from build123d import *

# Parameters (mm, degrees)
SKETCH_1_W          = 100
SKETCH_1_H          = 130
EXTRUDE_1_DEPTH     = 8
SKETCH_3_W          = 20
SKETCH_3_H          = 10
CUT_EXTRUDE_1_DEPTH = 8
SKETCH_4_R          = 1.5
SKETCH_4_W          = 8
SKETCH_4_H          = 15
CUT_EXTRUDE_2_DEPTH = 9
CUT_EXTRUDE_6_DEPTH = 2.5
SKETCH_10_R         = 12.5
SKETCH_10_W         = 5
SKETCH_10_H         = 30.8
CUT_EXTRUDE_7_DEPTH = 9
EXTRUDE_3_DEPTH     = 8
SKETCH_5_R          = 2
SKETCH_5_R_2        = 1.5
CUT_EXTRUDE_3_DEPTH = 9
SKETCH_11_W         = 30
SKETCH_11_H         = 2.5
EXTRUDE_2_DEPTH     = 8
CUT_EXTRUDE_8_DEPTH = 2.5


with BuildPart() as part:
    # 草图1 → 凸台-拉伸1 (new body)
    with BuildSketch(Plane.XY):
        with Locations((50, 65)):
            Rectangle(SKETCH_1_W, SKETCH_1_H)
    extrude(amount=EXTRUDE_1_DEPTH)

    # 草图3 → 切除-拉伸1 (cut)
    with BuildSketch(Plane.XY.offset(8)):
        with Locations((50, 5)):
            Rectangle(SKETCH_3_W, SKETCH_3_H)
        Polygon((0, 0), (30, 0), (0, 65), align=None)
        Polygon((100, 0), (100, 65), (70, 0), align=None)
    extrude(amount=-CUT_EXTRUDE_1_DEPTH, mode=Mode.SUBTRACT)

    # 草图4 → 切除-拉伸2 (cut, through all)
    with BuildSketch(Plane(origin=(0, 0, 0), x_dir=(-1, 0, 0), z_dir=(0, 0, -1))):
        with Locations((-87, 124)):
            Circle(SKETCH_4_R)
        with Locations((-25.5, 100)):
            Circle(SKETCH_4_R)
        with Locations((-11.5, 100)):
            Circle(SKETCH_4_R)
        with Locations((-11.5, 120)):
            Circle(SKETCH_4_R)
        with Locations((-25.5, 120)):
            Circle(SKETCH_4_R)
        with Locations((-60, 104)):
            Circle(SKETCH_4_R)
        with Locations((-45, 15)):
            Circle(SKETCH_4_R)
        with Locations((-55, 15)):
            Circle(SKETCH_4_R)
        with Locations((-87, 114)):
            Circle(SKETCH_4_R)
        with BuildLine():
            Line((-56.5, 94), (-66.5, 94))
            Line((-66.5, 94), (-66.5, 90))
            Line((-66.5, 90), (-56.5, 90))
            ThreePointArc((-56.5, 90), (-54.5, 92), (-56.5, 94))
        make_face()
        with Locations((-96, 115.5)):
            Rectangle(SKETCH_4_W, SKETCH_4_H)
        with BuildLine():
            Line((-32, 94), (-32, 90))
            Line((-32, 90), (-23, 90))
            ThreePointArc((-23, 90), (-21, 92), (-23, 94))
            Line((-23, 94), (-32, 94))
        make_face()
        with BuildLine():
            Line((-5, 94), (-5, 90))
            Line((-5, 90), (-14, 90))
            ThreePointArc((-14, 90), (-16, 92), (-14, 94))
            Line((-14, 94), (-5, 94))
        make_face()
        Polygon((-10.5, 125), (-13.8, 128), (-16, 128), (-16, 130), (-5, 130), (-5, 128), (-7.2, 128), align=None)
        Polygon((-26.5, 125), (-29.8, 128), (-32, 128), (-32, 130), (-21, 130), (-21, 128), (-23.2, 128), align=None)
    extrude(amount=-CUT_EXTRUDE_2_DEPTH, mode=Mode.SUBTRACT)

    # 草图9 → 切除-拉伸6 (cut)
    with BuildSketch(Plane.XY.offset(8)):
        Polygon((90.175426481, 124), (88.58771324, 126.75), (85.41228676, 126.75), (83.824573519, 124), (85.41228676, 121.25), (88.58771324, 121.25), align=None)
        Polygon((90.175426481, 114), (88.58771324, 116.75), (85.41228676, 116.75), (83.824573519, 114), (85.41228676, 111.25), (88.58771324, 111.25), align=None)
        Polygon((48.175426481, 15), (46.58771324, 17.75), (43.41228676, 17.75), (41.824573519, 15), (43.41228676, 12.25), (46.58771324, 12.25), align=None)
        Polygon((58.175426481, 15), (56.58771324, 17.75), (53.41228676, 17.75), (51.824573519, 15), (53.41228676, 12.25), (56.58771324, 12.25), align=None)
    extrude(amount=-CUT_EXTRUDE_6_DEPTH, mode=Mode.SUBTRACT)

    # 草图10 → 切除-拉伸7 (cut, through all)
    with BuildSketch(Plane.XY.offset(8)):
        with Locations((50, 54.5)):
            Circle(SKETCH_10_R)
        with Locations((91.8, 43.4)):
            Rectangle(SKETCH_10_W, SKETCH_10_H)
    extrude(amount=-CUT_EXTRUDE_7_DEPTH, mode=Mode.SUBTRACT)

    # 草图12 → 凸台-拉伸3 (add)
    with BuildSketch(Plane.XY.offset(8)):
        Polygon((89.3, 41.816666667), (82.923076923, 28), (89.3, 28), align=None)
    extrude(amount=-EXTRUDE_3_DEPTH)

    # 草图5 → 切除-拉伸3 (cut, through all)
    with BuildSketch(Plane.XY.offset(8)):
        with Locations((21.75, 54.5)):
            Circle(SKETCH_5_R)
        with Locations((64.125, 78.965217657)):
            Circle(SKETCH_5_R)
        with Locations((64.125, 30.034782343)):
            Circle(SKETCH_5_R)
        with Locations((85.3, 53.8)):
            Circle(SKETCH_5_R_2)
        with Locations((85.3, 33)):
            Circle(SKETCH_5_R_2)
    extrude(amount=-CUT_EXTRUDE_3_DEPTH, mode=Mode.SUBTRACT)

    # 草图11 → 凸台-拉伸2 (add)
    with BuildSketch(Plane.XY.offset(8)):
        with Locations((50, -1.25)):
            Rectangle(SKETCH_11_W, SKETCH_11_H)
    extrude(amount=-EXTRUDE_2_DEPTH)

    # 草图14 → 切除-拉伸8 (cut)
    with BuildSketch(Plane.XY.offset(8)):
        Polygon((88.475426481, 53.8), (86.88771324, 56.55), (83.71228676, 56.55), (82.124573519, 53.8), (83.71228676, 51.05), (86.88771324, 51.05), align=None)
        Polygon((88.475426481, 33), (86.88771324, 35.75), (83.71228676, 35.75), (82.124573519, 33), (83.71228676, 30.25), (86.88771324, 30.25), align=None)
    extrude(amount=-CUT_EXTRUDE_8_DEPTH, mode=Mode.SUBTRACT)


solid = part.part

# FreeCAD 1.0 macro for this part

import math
import FreeCAD as App
import Part
import Sketcher
Q = App.Units.Quantity

doc = App.newDocument("Part")
body = doc.addObject("PartDesign::Body", "Body")

# Sketch on XY plane
sketch1 = body.newObject("Sketcher::SketchObject", "Sketch")
sketch1.AttachmentSupport = (doc.getObject("XY_Plane"), [""])
sketch1.MapMode = "FlatFace"
sketch1.addGeometry(Part.LineSegment(App.Vector(0, 130, 0), App.Vector(0, 0, 0)), False)
sketch1.addGeometry(Part.LineSegment(App.Vector(0, 0, 0), App.Vector(100, 0, 0)), False)
sketch1.addGeometry(Part.LineSegment(App.Vector(100, 0, 0), App.Vector(100, 130, 0)), False)
sketch1.addGeometry(Part.LineSegment(App.Vector(100, 130, 0), App.Vector(0, 130, 0)), False)
sketch1.addConstraint(Sketcher.Constraint("Coincident", 0, 2, 1, 1))
sketch1.addConstraint(Sketcher.Constraint("Coincident", 1, 2, 2, 1))
sketch1.addConstraint(Sketcher.Constraint("Coincident", 2, 2, 3, 1))
sketch1.addConstraint(Sketcher.Constraint("Coincident", 3, 2, 0, 1))
sketch1.addConstraint(Sketcher.Constraint("Vertical", 0))
sketch1.addConstraint(Sketcher.Constraint("Horizontal", 1))
sketch1.addConstraint(Sketcher.Constraint("Vertical", 2))
sketch1.addConstraint(Sketcher.Constraint("Horizontal", 3))
sketch1.addConstraint(Sketcher.Constraint("Coincident", 0, 2, -1, 1))
sketch1.addConstraint(Sketcher.Constraint("DistanceX", 1, 1, 1, 2, Q("100 mm")))
sketch1.addConstraint(Sketcher.Constraint("DistanceY", 0, 2, 0, 1, Q("130 mm")))
pad1 = body.newObject("PartDesign::Pad", "Pad")
pad1.Profile = sketch1
pad1.Length = 8

# Sketch on XY plane
sketch2 = body.newObject("Sketcher::SketchObject", "Sketch001")
sketch2.AttachmentSupport = (doc.getObject("XY_Plane"), [""])
sketch2.MapMode = "FlatFace"
sketch2.AttachmentOffset = App.Placement(App.Vector(0, 0, 8), App.Rotation())
sketch2.addGeometry(Part.LineSegment(App.Vector(40, 10, 0), App.Vector(40, 0, 0)), False)
sketch2.addGeometry(Part.LineSegment(App.Vector(40, 0, 0), App.Vector(60, 0, 0)), False)
sketch2.addGeometry(Part.LineSegment(App.Vector(60, 0, 0), App.Vector(60, 10, 0)), False)
sketch2.addGeometry(Part.LineSegment(App.Vector(60, 10, 0), App.Vector(40, 10, 0)), False)
sketch2.addGeometry(Part.LineSegment(App.Vector(0, 0, 0), App.Vector(30, 0, 0)), False)
sketch2.addGeometry(Part.LineSegment(App.Vector(30, 0, 0), App.Vector(0, 65, 0)), False)
sketch2.addGeometry(Part.LineSegment(App.Vector(0, 65, 0), App.Vector(0, 0, 0)), False)
sketch2.addGeometry(Part.LineSegment(App.Vector(100, 0, 0), App.Vector(100, 65, 0)), False)
sketch2.addGeometry(Part.LineSegment(App.Vector(100, 65, 0), App.Vector(70, 0, 0)), False)
sketch2.addGeometry(Part.LineSegment(App.Vector(70, 0, 0), App.Vector(100, 0, 0)), False)
sketch2.addConstraint(Sketcher.Constraint("Coincident", 0, 2, 1, 1))
sketch2.addConstraint(Sketcher.Constraint("Coincident", 1, 2, 2, 1))
sketch2.addConstraint(Sketcher.Constraint("Coincident", 2, 2, 3, 1))
sketch2.addConstraint(Sketcher.Constraint("Coincident", 3, 2, 0, 1))
sketch2.addConstraint(Sketcher.Constraint("Coincident", 4, 2, 5, 1))
sketch2.addConstraint(Sketcher.Constraint("Coincident", 5, 2, 6, 1))
sketch2.addConstraint(Sketcher.Constraint("Coincident", 6, 2, 4, 1))
sketch2.addConstraint(Sketcher.Constraint("Coincident", 7, 2, 8, 1))
sketch2.addConstraint(Sketcher.Constraint("Coincident", 8, 2, 9, 1))
sketch2.addConstraint(Sketcher.Constraint("Coincident", 9, 2, 7, 1))
sketch2.addConstraint(Sketcher.Constraint("Vertical", 0))
sketch2.addConstraint(Sketcher.Constraint("Horizontal", 1))
sketch2.addConstraint(Sketcher.Constraint("Vertical", 2))
sketch2.addConstraint(Sketcher.Constraint("Horizontal", 3))
sketch2.addConstraint(Sketcher.Constraint("Horizontal", 4))
sketch2.addConstraint(Sketcher.Constraint("Vertical", 6))
sketch2.addConstraint(Sketcher.Constraint("Vertical", 7))
sketch2.addConstraint(Sketcher.Constraint("Horizontal", 9))
sketch2.addConstraint(Sketcher.Constraint("Coincident", 6, 2, -1, 1))
sketch2.addConstraint(Sketcher.Constraint("PointOnObject", 0, 2, -1))
sketch2.addConstraint(Sketcher.Constraint("PointOnObject", 8, 2, -1))
sketch2.addConstraint(Sketcher.Constraint("Horizontal", 5, 2, 7, 2))
sketch2.addConstraint(Sketcher.Constraint("Equal", 4, 9))
sketch2.addConstraint(Sketcher.Constraint("DistanceX", 1, 1, 1, 2, Q("20 mm")))
sketch2.addConstraint(Sketcher.Constraint("DistanceX", 4, 1, 4, 2, Q("30 mm")))
sketch2.addConstraint(Sketcher.Constraint("DistanceY", 0, 2, 0, 1, Q("10 mm")))
sketch2.addConstraint(Sketcher.Constraint("DistanceY", 6, 2, 6, 1, Q("65 mm")))
sketch2.addConstraint(Sketcher.Constraint("DistanceX", -1, 1, 0, 2, Q("40 mm")))
sketch2.addConstraint(Sketcher.Constraint("DistanceX", -1, 1, 7, 2, Q("100 mm")))
pocket1 = body.newObject("PartDesign::Pocket", "Pocket")
pocket1.Profile = sketch2
pocket1.Length = 8

# Sketch on XY plane
sketch3 = body.newObject("Sketcher::SketchObject", "Sketch002")
sketch3.AttachmentSupport = (doc.getObject("XY_Plane"), [""])
sketch3.MapMode = "FlatFace"
sketch3.addGeometry(Part.Circle(App.Vector(87, 124, 0), App.Vector(0, 0, 1), 1.5), False)
sketch3.addGeometry(Part.Circle(App.Vector(25.5, 100, 0), App.Vector(0, 0, 1), 1.5), False)
sketch3.addGeometry(Part.Circle(App.Vector(11.5, 100, 0), App.Vector(0, 0, 1), 1.5), False)
sketch3.addGeometry(Part.Circle(App.Vector(11.5, 120, 0), App.Vector(0, 0, 1), 1.5), False)
sketch3.addGeometry(Part.Circle(App.Vector(25.5, 120, 0), App.Vector(0, 0, 1), 1.5), False)
sketch3.addGeometry(Part.Circle(App.Vector(60, 104, 0), App.Vector(0, 0, 1), 1.5), False)
sketch3.addGeometry(Part.Circle(App.Vector(45, 15, 0), App.Vector(0, 0, 1), 1.5), False)
sketch3.addGeometry(Part.Circle(App.Vector(55, 15, 0), App.Vector(0, 0, 1), 1.5), False)
sketch3.addGeometry(Part.Circle(App.Vector(87, 114, 0), App.Vector(0, 0, 1), 1.5), False)
sketch3.addGeometry(Part.LineSegment(App.Vector(56.5, 94, 0), App.Vector(66.5, 94, 0)), False)
sketch3.addGeometry(Part.LineSegment(App.Vector(66.5, 94, 0), App.Vector(66.5, 90, 0)), False)
sketch3.addGeometry(Part.LineSegment(App.Vector(66.5, 90, 0), App.Vector(56.5, 90, 0)), False)
sketch3.addGeometry(Part.ArcOfCircle(Part.Circle(App.Vector(56.5, 92, 0), App.Vector(0, 0, 1), 2), math.radians(90), math.radians(270)), False)
sketch3.addGeometry(Part.LineSegment(App.Vector(100, 123, 0), App.Vector(100, 108, 0)), False)
sketch3.addGeometry(Part.LineSegment(App.Vector(100, 108, 0), App.Vector(92, 108, 0)), False)
sketch3.addGeometry(Part.LineSegment(App.Vector(92, 108, 0), App.Vector(92, 123, 0)), False)
sketch3.addGeometry(Part.LineSegment(App.Vector(92, 123, 0), App.Vector(100, 123, 0)), False)
sketch3.addGeometry(Part.LineSegment(App.Vector(32, 94, 0), App.Vector(32, 90, 0)), False)
sketch3.addGeometry(Part.LineSegment(App.Vector(32, 90, 0), App.Vector(23, 90, 0)), False)
sketch3.addGeometry(Part.ArcOfCircle(Part.Circle(App.Vector(23, 92, 0), App.Vector(0, 0, 1), 2), math.radians(90), math.radians(270)), False)
sketch3.addGeometry(Part.LineSegment(App.Vector(23, 94, 0), App.Vector(32, 94, 0)), False)
sketch3.addGeometry(Part.LineSegment(App.Vector(5, 90, 0), App.Vector(5, 94, 0)), False)
sketch3.addGeometry(Part.LineSegment(App.Vector(5, 94, 0), App.Vector(14, 94, 0)), False)
sketch3.addGeometry(Part.ArcOfCircle(Part.Circle(App.Vector(14, 92, 0), App.Vector(0, 0, 1), 2), math.radians(-90), math.radians(90)), False)
sketch3.addGeometry(Part.LineSegment(App.Vector(14, 90, 0), App.Vector(5, 90, 0)), False)
sketch3.addGeometry(Part.LineSegment(App.Vector(13.8, 128, 0), App.Vector(10.5, 125, 0)), False)
sketch3.addGeometry(Part.LineSegment(App.Vector(10.5, 125, 0), App.Vector(7.2, 128, 0)), False)
sketch3.addGeometry(Part.LineSegment(App.Vector(7.2, 128, 0), App.Vector(5, 128, 0)), False)
sketch3.addGeometry(Part.LineSegment(App.Vector(5, 128, 0), App.Vector(5, 130, 0)), False)
sketch3.addGeometry(Part.LineSegment(App.Vector(5, 130, 0), App.Vector(16, 130, 0)), False)
sketch3.addGeometry(Part.LineSegment(App.Vector(16, 130, 0), App.Vector(16, 128, 0)), False)
sketch3.addGeometry(Part.LineSegment(App.Vector(16, 128, 0), App.Vector(13.8, 128, 0)), False)
sketch3.addGeometry(Part.LineSegment(App.Vector(29.8, 128, 0), App.Vector(26.5, 125, 0)), False)
sketch3.addGeometry(Part.LineSegment(App.Vector(26.5, 125, 0), App.Vector(23.2, 128, 0)), False)
sketch3.addGeometry(Part.LineSegment(App.Vector(23.2, 128, 0), App.Vector(21, 128, 0)), False)
sketch3.addGeometry(Part.LineSegment(App.Vector(21, 128, 0), App.Vector(21, 130, 0)), False)
sketch3.addGeometry(Part.LineSegment(App.Vector(21, 130, 0), App.Vector(32, 130, 0)), False)
sketch3.addGeometry(Part.LineSegment(App.Vector(32, 130, 0), App.Vector(32, 128, 0)), False)
sketch3.addGeometry(Part.LineSegment(App.Vector(32, 128, 0), App.Vector(29.8, 128, 0)), False)
sketch3.addConstraint(Sketcher.Constraint("Coincident", 9, 2, 10, 1))
sketch3.addConstraint(Sketcher.Constraint("Coincident", 10, 2, 11, 1))
sketch3.addConstraint(Sketcher.Constraint("Tangent", 11, 2, 12, 2))
sketch3.addConstraint(Sketcher.Constraint("Tangent", 12, 1, 9, 1))
sketch3.addConstraint(Sketcher.Constraint("Coincident", 13, 2, 14, 1))
sketch3.addConstraint(Sketcher.Constraint("Coincident", 14, 2, 15, 1))
sketch3.addConstraint(Sketcher.Constraint("Coincident", 15, 2, 16, 1))
sketch3.addConstraint(Sketcher.Constraint("Coincident", 16, 2, 13, 1))
sketch3.addConstraint(Sketcher.Constraint("Coincident", 17, 2, 18, 1))
sketch3.addConstraint(Sketcher.Constraint("Tangent", 18, 2, 19, 2))
sketch3.addConstraint(Sketcher.Constraint("Tangent", 19, 1, 20, 1))
sketch3.addConstraint(Sketcher.Constraint("Coincident", 20, 2, 17, 1))
sketch3.addConstraint(Sketcher.Constraint("Coincident", 21, 2, 22, 1))
sketch3.addConstraint(Sketcher.Constraint("Tangent", 22, 2, 23, 2))
sketch3.addConstraint(Sketcher.Constraint("Tangent", 23, 1, 24, 1))
sketch3.addConstraint(Sketcher.Constraint("Coincident", 24, 2, 21, 1))
sketch3.addConstraint(Sketcher.Constraint("Coincident", 25, 2, 26, 1))
sketch3.addConstraint(Sketcher.Constraint("Coincident", 26, 2, 27, 1))
sketch3.addConstraint(Sketcher.Constraint("Coincident", 27, 2, 28, 1))
sketch3.addConstraint(Sketcher.Constraint("Coincident", 28, 2, 29, 1))
sketch3.addConstraint(Sketcher.Constraint("Coincident", 29, 2, 30, 1))
sketch3.addConstraint(Sketcher.Constraint("Coincident", 30, 2, 31, 1))
sketch3.addConstraint(Sketcher.Constraint("Coincident", 31, 2, 25, 1))
sketch3.addConstraint(Sketcher.Constraint("Coincident", 32, 2, 33, 1))
sketch3.addConstraint(Sketcher.Constraint("Coincident", 33, 2, 34, 1))
sketch3.addConstraint(Sketcher.Constraint("Coincident", 34, 2, 35, 1))
sketch3.addConstraint(Sketcher.Constraint("Coincident", 35, 2, 36, 1))
sketch3.addConstraint(Sketcher.Constraint("Coincident", 36, 2, 37, 1))
sketch3.addConstraint(Sketcher.Constraint("Coincident", 37, 2, 38, 1))
sketch3.addConstraint(Sketcher.Constraint("Coincident", 38, 2, 32, 1))
sketch3.addConstraint(Sketcher.Constraint("Horizontal", 9))
sketch3.addConstraint(Sketcher.Constraint("Vertical", 10))
sketch3.addConstraint(Sketcher.Constraint("Horizontal", 11))
sketch3.addConstraint(Sketcher.Constraint("Vertical", 13))
sketch3.addConstraint(Sketcher.Constraint("Horizontal", 14))
sketch3.addConstraint(Sketcher.Constraint("Vertical", 15))
sketch3.addConstraint(Sketcher.Constraint("Horizontal", 16))
sketch3.addConstraint(Sketcher.Constraint("Vertical", 17))
sketch3.addConstraint(Sketcher.Constraint("Horizontal", 18))
sketch3.addConstraint(Sketcher.Constraint("Horizontal", 20))
sketch3.addConstraint(Sketcher.Constraint("Vertical", 21))
sketch3.addConstraint(Sketcher.Constraint("Horizontal", 22))
sketch3.addConstraint(Sketcher.Constraint("Horizontal", 24))
sketch3.addConstraint(Sketcher.Constraint("Horizontal", 27))
sketch3.addConstraint(Sketcher.Constraint("Vertical", 28))
sketch3.addConstraint(Sketcher.Constraint("Horizontal", 29))
sketch3.addConstraint(Sketcher.Constraint("Vertical", 30))
sketch3.addConstraint(Sketcher.Constraint("Horizontal", 31))
sketch3.addConstraint(Sketcher.Constraint("Horizontal", 34))
sketch3.addConstraint(Sketcher.Constraint("Vertical", 35))
sketch3.addConstraint(Sketcher.Constraint("Horizontal", 36))
sketch3.addConstraint(Sketcher.Constraint("Vertical", 37))
sketch3.addConstraint(Sketcher.Constraint("Horizontal", 38))
sketch3.addConstraint(Sketcher.Constraint("Equal", 0, 1))
sketch3.addConstraint(Sketcher.Constraint("Equal", 1, 2))
sketch3.addConstraint(Sketcher.Constraint("Equal", 2, 3))
sketch3.addConstraint(Sketcher.Constraint("Equal", 3, 4))
sketch3.addConstraint(Sketcher.Constraint("Equal", 4, 5))
sketch3.addConstraint(Sketcher.Constraint("Equal", 5, 6))
sketch3.addConstraint(Sketcher.Constraint("Equal", 6, 7))
sketch3.addConstraint(Sketcher.Constraint("Equal", 7, 8))
sketch3.addConstraint(Sketcher.Constraint("Equal", 12, 19))
sketch3.addConstraint(Sketcher.Constraint("Equal", 19, 23))
sketch3.addConstraint(Sketcher.Constraint("Parallel", 25, 32))
sketch3.addConstraint(Sketcher.Constraint("Parallel", 26, 33))
sketch3.addConstraint(Sketcher.Constraint("Horizontal", 1, 3, 2, 3))
sketch3.addConstraint(Sketcher.Constraint("Horizontal", 3, 3, 4, 3))
sketch3.addConstraint(Sketcher.Constraint("Horizontal", 6, 3, 7, 3))
sketch3.addConstraint(Sketcher.Constraint("Horizontal", 12, 3, 19, 3))
sketch3.addConstraint(Sketcher.Constraint("Horizontal", 19, 3, 23, 3))
sketch3.addConstraint(Sketcher.Constraint("Horizontal", 27, 2, 30, 2))
sketch3.addConstraint(Sketcher.Constraint("Horizontal", 25, 2, 32, 2))
sketch3.addConstraint(Sketcher.Constraint("Horizontal", 31, 2, 33, 2))
sketch3.addConstraint(Sketcher.Constraint("Horizontal", 29, 2, 35, 2))
sketch3.addConstraint(Sketcher.Constraint("Horizontal", 34, 2, 37, 2))
sketch3.addConstraint(Sketcher.Constraint("Vertical", 2, 3, 3, 3))
sketch3.addConstraint(Sketcher.Constraint("Vertical", 1, 3, 4, 3))
sketch3.addConstraint(Sketcher.Constraint("Vertical", 0, 3, 8, 3))
sketch3.addConstraint(Sketcher.Constraint("Vertical", 24, 2, 27, 2))
sketch3.addConstraint(Sketcher.Constraint("Vertical", 20, 2, 36, 2))
sketch3.addConstraint(Sketcher.Constraint("Equal", 20, 22))
sketch3.addConstraint(Sketcher.Constraint("Equal", 27, 31))
sketch3.addConstraint(Sketcher.Constraint("Equal", 31, 34))
sketch3.addConstraint(Sketcher.Constraint("Equal", 29, 36))
sketch3.addConstraint(Sketcher.Constraint("Equal", 25, 26))
sketch3.addConstraint(Sketcher.Constraint("Diameter", 0, Q("3 mm")))
sketch3.addConstraint(Sketcher.Constraint("Radius", 12, Q("2 mm")))
sketch3.addConstraint(Sketcher.Constraint("DistanceX", 9, 1, 9, 2, Q("10 mm")))
sketch3.addConstraint(Sketcher.Constraint("DistanceX", 14, 2, 14, 1, Q("8 mm")))
sketch3.addConstraint(Sketcher.Constraint("DistanceX", 18, 2, 18, 1, Q("9 mm")))
sketch3.addConstraint(Sketcher.Constraint("DistanceX", 29, 1, 29, 2, Q("11 mm")))
sketch3.addConstraint(Sketcher.Constraint("DistanceY", 13, 2, 13, 1, Q("15 mm")))
sketch3.addConstraint(Sketcher.Constraint("DistanceY", 28, 1, 28, 2, Q("2 mm")))
sketch3.addConstraint(Sketcher.Constraint("DistanceX", 27, 2, 27, 1, Q("2.2 mm")))
sketch3.addConstraint(Sketcher.Constraint("DistanceX", -1, 1, 0, 3, Q("87 mm")))
sketch3.addConstraint(Sketcher.Constraint("DistanceY", -1, 1, 0, 3, Q("124 mm")))
sketch3.addConstraint(Sketcher.Constraint("DistanceY", -1, 1, 1, 3, Q("100 mm")))
sketch3.addConstraint(Sketcher.Constraint("DistanceY", -1, 1, 3, 3, Q("120 mm")))
sketch3.addConstraint(Sketcher.Constraint("DistanceX", -1, 1, 5, 3, Q("60 mm")))
sketch3.addConstraint(Sketcher.Constraint("DistanceY", -1, 1, 5, 3, Q("104 mm")))
sketch3.addConstraint(Sketcher.Constraint("DistanceX", -1, 1, 6, 3, Q("45 mm")))
sketch3.addConstraint(Sketcher.Constraint("DistanceY", -1, 1, 6, 3, Q("15 mm")))
sketch3.addConstraint(Sketcher.Constraint("DistanceX", -1, 1, 7, 3, Q("55 mm")))
sketch3.addConstraint(Sketcher.Constraint("DistanceY", -1, 1, 8, 3, Q("114 mm")))
sketch3.addConstraint(Sketcher.Constraint("DistanceY", -1, 1, 12, 3, Q("92 mm")))
sketch3.addConstraint(Sketcher.Constraint("DistanceX", -1, 1, 19, 3, Q("23 mm")))
sketch3.addConstraint(Sketcher.Constraint("DistanceX", -1, 1, 23, 3, Q("14 mm")))
sketch3.addConstraint(Sketcher.Constraint("DistanceX", -1, 1, 13, 2, Q("100 mm")))
sketch3.addConstraint(Sketcher.Constraint("DistanceY", -1, 1, 13, 2, Q("108 mm")))
sketch3.addConstraint(Sketcher.Constraint("DistanceY", -1, 1, 25, 2, Q("125 mm")))
sketch3.addConstraint(Sketcher.Constraint("DistanceY", -1, 1, 26, 2, Q("128 mm")))
sketch3.addConstraint(Sketcher.Constraint("DistanceX", 2, 3, 1, 3, Q("14 mm")))
sketch3.addConstraint(Sketcher.Constraint("DistanceX", 1, 3, 12, 3, Q("31 mm")))
sketch3.addConstraint(Sketcher.Constraint("DistanceX", 25, 2, 3, 3, Q("1 mm")))
pocket2 = body.newObject("PartDesign::Pocket", "Pocket001")
pocket2.Profile = sketch3
pocket2.Type = "ThroughAll"
pocket2.Reversed = True

# Sketch on XY plane
sketch4 = body.newObject("Sketcher::SketchObject", "Sketch003")
sketch4.AttachmentSupport = (doc.getObject("XY_Plane"), [""])
sketch4.MapMode = "FlatFace"
sketch4.AttachmentOffset = App.Placement(App.Vector(0, 0, 8), App.Rotation())
sketch4.addGeometry(Part.LineSegment(App.Vector(90.2, 124, 0), App.Vector(88.6, 126.8, 0)), False)
sketch4.addGeometry(Part.LineSegment(App.Vector(88.6, 126.8, 0), App.Vector(85.4, 126.8, 0)), False)
sketch4.addGeometry(Part.LineSegment(App.Vector(85.4, 126.8, 0), App.Vector(83.8, 124, 0)), False)
sketch4.addGeometry(Part.LineSegment(App.Vector(83.8, 124, 0), App.Vector(85.4, 121.2, 0)), False)
sketch4.addGeometry(Part.LineSegment(App.Vector(85.4, 121.2, 0), App.Vector(88.6, 121.2, 0)), False)
sketch4.addGeometry(Part.LineSegment(App.Vector(88.6, 121.2, 0), App.Vector(90.2, 124, 0)), False)
sketch4.addGeometry(Part.LineSegment(App.Vector(90.2, 114, 0), App.Vector(88.6, 116.8, 0)), False)
sketch4.addGeometry(Part.LineSegment(App.Vector(88.6, 116.8, 0), App.Vector(85.4, 116.8, 0)), False)
sketch4.addGeometry(Part.LineSegment(App.Vector(85.4, 116.8, 0), App.Vector(83.8, 114, 0)), False)
sketch4.addGeometry(Part.LineSegment(App.Vector(83.8, 114, 0), App.Vector(85.4, 111.2, 0)), False)
sketch4.addGeometry(Part.LineSegment(App.Vector(85.4, 111.2, 0), App.Vector(88.6, 111.2, 0)), False)
sketch4.addGeometry(Part.LineSegment(App.Vector(88.6, 111.2, 0), App.Vector(90.2, 114, 0)), False)
sketch4.addGeometry(Part.LineSegment(App.Vector(48.2, 15, 0), App.Vector(46.6, 17.8, 0)), False)
sketch4.addGeometry(Part.LineSegment(App.Vector(46.6, 17.8, 0), App.Vector(43.4, 17.8, 0)), False)
sketch4.addGeometry(Part.LineSegment(App.Vector(43.4, 17.8, 0), App.Vector(41.8, 15, 0)), False)
sketch4.addGeometry(Part.LineSegment(App.Vector(41.8, 15, 0), App.Vector(43.4, 12.2, 0)), False)
sketch4.addGeometry(Part.LineSegment(App.Vector(43.4, 12.2, 0), App.Vector(46.6, 12.2, 0)), False)
sketch4.addGeometry(Part.LineSegment(App.Vector(46.6, 12.2, 0), App.Vector(48.2, 15, 0)), False)
sketch4.addGeometry(Part.LineSegment(App.Vector(58.2, 15, 0), App.Vector(56.6, 17.8, 0)), False)
sketch4.addGeometry(Part.LineSegment(App.Vector(56.6, 17.8, 0), App.Vector(53.4, 17.8, 0)), False)
sketch4.addGeometry(Part.LineSegment(App.Vector(53.4, 17.8, 0), App.Vector(51.8, 15, 0)), False)
sketch4.addGeometry(Part.LineSegment(App.Vector(51.8, 15, 0), App.Vector(53.4, 12.2, 0)), False)
sketch4.addGeometry(Part.LineSegment(App.Vector(53.4, 12.2, 0), App.Vector(56.6, 12.2, 0)), False)
sketch4.addGeometry(Part.LineSegment(App.Vector(56.6, 12.2, 0), App.Vector(58.2, 15, 0)), False)
sketch4.addConstraint(Sketcher.Constraint("Coincident", 0, 2, 1, 1))
sketch4.addConstraint(Sketcher.Constraint("Coincident", 1, 2, 2, 1))
sketch4.addConstraint(Sketcher.Constraint("Coincident", 2, 2, 3, 1))
sketch4.addConstraint(Sketcher.Constraint("Coincident", 3, 2, 4, 1))
sketch4.addConstraint(Sketcher.Constraint("Coincident", 4, 2, 5, 1))
sketch4.addConstraint(Sketcher.Constraint("Coincident", 5, 2, 0, 1))
sketch4.addConstraint(Sketcher.Constraint("Coincident", 6, 2, 7, 1))
sketch4.addConstraint(Sketcher.Constraint("Coincident", 7, 2, 8, 1))
sketch4.addConstraint(Sketcher.Constraint("Coincident", 8, 2, 9, 1))
sketch4.addConstraint(Sketcher.Constraint("Coincident", 9, 2, 10, 1))
sketch4.addConstraint(Sketcher.Constraint("Coincident", 10, 2, 11, 1))
sketch4.addConstraint(Sketcher.Constraint("Coincident", 11, 2, 6, 1))
sketch4.addConstraint(Sketcher.Constraint("Coincident", 12, 2, 13, 1))
sketch4.addConstraint(Sketcher.Constraint("Coincident", 13, 2, 14, 1))
sketch4.addConstraint(Sketcher.Constraint("Coincident", 14, 2, 15, 1))
sketch4.addConstraint(Sketcher.Constraint("Coincident", 15, 2, 16, 1))
sketch4.addConstraint(Sketcher.Constraint("Coincident", 16, 2, 17, 1))
sketch4.addConstraint(Sketcher.Constraint("Coincident", 17, 2, 12, 1))
sketch4.addConstraint(Sketcher.Constraint("Coincident", 18, 2, 19, 1))
sketch4.addConstraint(Sketcher.Constraint("Coincident", 19, 2, 20, 1))
sketch4.addConstraint(Sketcher.Constraint("Coincident", 20, 2, 21, 1))
sketch4.addConstraint(Sketcher.Constraint("Coincident", 21, 2, 22, 1))
sketch4.addConstraint(Sketcher.Constraint("Coincident", 22, 2, 23, 1))
sketch4.addConstraint(Sketcher.Constraint("Coincident", 23, 2, 18, 1))
sketch4.addConstraint(Sketcher.Constraint("Horizontal", 1))
sketch4.addConstraint(Sketcher.Constraint("Horizontal", 4))
sketch4.addConstraint(Sketcher.Constraint("Horizontal", 7))
sketch4.addConstraint(Sketcher.Constraint("Horizontal", 10))
sketch4.addConstraint(Sketcher.Constraint("Horizontal", 13))
sketch4.addConstraint(Sketcher.Constraint("Horizontal", 16))
sketch4.addConstraint(Sketcher.Constraint("Horizontal", 19))
sketch4.addConstraint(Sketcher.Constraint("Horizontal", 22))
sketch4.addConstraint(Sketcher.Constraint("Parallel", 0, 3))
sketch4.addConstraint(Sketcher.Constraint("Parallel", 2, 5))
sketch4.addConstraint(Sketcher.Constraint("Parallel", 3, 6))
sketch4.addConstraint(Sketcher.Constraint("Parallel", 5, 8))
sketch4.addConstraint(Sketcher.Constraint("Parallel", 6, 9))
sketch4.addConstraint(Sketcher.Constraint("Parallel", 8, 11))
sketch4.addConstraint(Sketcher.Constraint("Parallel", 9, 12))
sketch4.addConstraint(Sketcher.Constraint("Parallel", 11, 14))
sketch4.addConstraint(Sketcher.Constraint("Parallel", 12, 15))
sketch4.addConstraint(Sketcher.Constraint("Parallel", 14, 17))
sketch4.addConstraint(Sketcher.Constraint("Parallel", 15, 18))
sketch4.addConstraint(Sketcher.Constraint("Parallel", 17, 20))
sketch4.addConstraint(Sketcher.Constraint("Parallel", 18, 21))
sketch4.addConstraint(Sketcher.Constraint("Parallel", 20, 23))
sketch4.addConstraint(Sketcher.Constraint("Horizontal", 2, 2, 5, 2))
sketch4.addConstraint(Sketcher.Constraint("Horizontal", 8, 2, 11, 2))
sketch4.addConstraint(Sketcher.Constraint("Horizontal", 14, 2, 17, 2))
sketch4.addConstraint(Sketcher.Constraint("Horizontal", 13, 2, 18, 2))
sketch4.addConstraint(Sketcher.Constraint("Horizontal", 17, 2, 20, 2))
sketch4.addConstraint(Sketcher.Constraint("Horizontal", 16, 2, 21, 2))
sketch4.addConstraint(Sketcher.Constraint("Horizontal", 20, 2, 23, 2))
sketch4.addConstraint(Sketcher.Constraint("Vertical", 1, 2, 3, 2))
sketch4.addConstraint(Sketcher.Constraint("Vertical", 0, 2, 4, 2))
sketch4.addConstraint(Sketcher.Constraint("Vertical", 4, 2, 6, 2))
sketch4.addConstraint(Sketcher.Constraint("Vertical", 3, 2, 7, 2))
sketch4.addConstraint(Sketcher.Constraint("Vertical", 2, 2, 8, 2))
sketch4.addConstraint(Sketcher.Constraint("Vertical", 7, 2, 9, 2))
sketch4.addConstraint(Sketcher.Constraint("Vertical", 13, 2, 15, 2))
sketch4.addConstraint(Sketcher.Constraint("Equal", 10, 13))
sketch4.addConstraint(Sketcher.Constraint("Equal", 16, 19))
sketch4.addConstraint(Sketcher.Constraint("Equal", 11, 12))
sketch4.addConstraint(Sketcher.Constraint("Angle", 0, Q("120 deg")))
sketch4.addConstraint(Sketcher.Constraint("DistanceY", -1, 1, 2, 2, Q("124 mm")))
sketch4.addConstraint(Sketcher.Constraint("DistanceY", -1, 1, 8, 2, Q("114 mm")))
sketch4.addConstraint(Sketcher.Constraint("DistanceY", -1, 1, 14, 2, Q("15 mm")))
sketch4.addConstraint(Sketcher.Constraint("DistanceX", 12, 2, 10, 2, Q("42 mm")))
sketch4.addConstraint(Sketcher.Constraint("DistanceX", 12, 2, 18, 2, Q("10 mm")))
sketch4.addConstraint(Sketcher.Constraint("DistanceY", 3, 2, 1, 2, Q("5.5 mm")))
sketch4.addConstraint(Sketcher.Constraint("DistanceX", 1, 2, 1, 1, Q("3.175426 mm")))
sketch4.addConstraint(Sketcher.Constraint("DistanceX", -1, 1, 0, 2, Q("88.587713 mm")))
pocket3 = body.newObject("PartDesign::Pocket", "Pocket002")
pocket3.Profile = sketch4
pocket3.Length = 2.5

# Sketch on XY plane
sketch5 = body.newObject("Sketcher::SketchObject", "Sketch004")
sketch5.AttachmentSupport = (doc.getObject("XY_Plane"), [""])
sketch5.MapMode = "FlatFace"
sketch5.AttachmentOffset = App.Placement(App.Vector(0, 0, 8), App.Rotation())
sketch5.addGeometry(Part.Circle(App.Vector(50, 54, 0), App.Vector(0, 0, 1), 12), False)
sketch5.addGeometry(Part.LineSegment(App.Vector(89, 59, 0), App.Vector(89, 28, 0)), False)
sketch5.addGeometry(Part.LineSegment(App.Vector(89, 28, 0), App.Vector(94, 28, 0)), False)
sketch5.addGeometry(Part.LineSegment(App.Vector(94, 28, 0), App.Vector(94, 59, 0)), False)
sketch5.addGeometry(Part.LineSegment(App.Vector(94, 59, 0), App.Vector(89, 59, 0)), False)
sketch5.addConstraint(Sketcher.Constraint("Coincident", 1, 2, 2, 1))
sketch5.addConstraint(Sketcher.Constraint("Coincident", 2, 2, 3, 1))
sketch5.addConstraint(Sketcher.Constraint("Coincident", 3, 2, 4, 1))
sketch5.addConstraint(Sketcher.Constraint("Coincident", 4, 2, 1, 1))
sketch5.addConstraint(Sketcher.Constraint("Vertical", 1))
sketch5.addConstraint(Sketcher.Constraint("Horizontal", 2))
sketch5.addConstraint(Sketcher.Constraint("Vertical", 3))
sketch5.addConstraint(Sketcher.Constraint("Horizontal", 4))
sketch5.addConstraint(Sketcher.Constraint("Diameter", 0, Q("25 mm")))
sketch5.addConstraint(Sketcher.Constraint("DistanceX", 2, 1, 2, 2, Q("5 mm")))
sketch5.addConstraint(Sketcher.Constraint("DistanceY", 1, 2, 1, 1, Q("30.8 mm")))
sketch5.addConstraint(Sketcher.Constraint("DistanceX", -1, 1, 0, 3, Q("50 mm")))
sketch5.addConstraint(Sketcher.Constraint("DistanceY", -1, 1, 1, 2, Q("28 mm")))
sketch5.addConstraint(Sketcher.Constraint("DistanceY", -1, 1, 0, 3, Q("54.5 mm")))
sketch5.addConstraint(Sketcher.Constraint("DistanceX", -1, 1, 1, 2, Q("89.3 mm")))
pocket4 = body.newObject("PartDesign::Pocket", "Pocket003")
pocket4.Profile = sketch5
pocket4.Type = "ThroughAll"

# Sketch on XY plane
sketch6 = body.newObject("Sketcher::SketchObject", "Sketch005")
sketch6.AttachmentSupport = (doc.getObject("XY_Plane"), [""])
sketch6.MapMode = "FlatFace"
sketch6.AttachmentOffset = App.Placement(App.Vector(0, 0, 8), App.Rotation())
sketch6.addGeometry(Part.LineSegment(App.Vector(89, 42, 0), App.Vector(83, 28, 0)), False)
sketch6.addGeometry(Part.LineSegment(App.Vector(83, 28, 0), App.Vector(89, 28, 0)), False)
sketch6.addGeometry(Part.LineSegment(App.Vector(89, 28, 0), App.Vector(89, 42, 0)), False)
sketch6.addConstraint(Sketcher.Constraint("Coincident", 0, 2, 1, 1))
sketch6.addConstraint(Sketcher.Constraint("Coincident", 1, 2, 2, 1))
sketch6.addConstraint(Sketcher.Constraint("Coincident", 2, 2, 0, 1))
sketch6.addConstraint(Sketcher.Constraint("Horizontal", 1))
sketch6.addConstraint(Sketcher.Constraint("Vertical", 2))
sketch6.addConstraint(Sketcher.Constraint("DistanceY", -1, 1, 0, 2, Q("28 mm")))
sketch6.addConstraint(Sketcher.Constraint("DistanceX", -1, 1, 1, 2, Q("89.3 mm")))
sketch6.addConstraint(Sketcher.Constraint("DistanceX", 1, 1, 1, 2, Q("6.376923 mm")))
sketch6.addConstraint(Sketcher.Constraint("DistanceY", 2, 1, 2, 2, Q("13.816667 mm")))
pad2 = body.newObject("PartDesign::Pad", "Pad001")
pad2.Profile = sketch6
pad2.Length = 8
pad2.Reversed = True

# Sketch on XY plane
sketch7 = body.newObject("Sketcher::SketchObject", "Sketch006")
sketch7.AttachmentSupport = (doc.getObject("XY_Plane"), [""])
sketch7.MapMode = "FlatFace"
sketch7.AttachmentOffset = App.Placement(App.Vector(0, 0, 8), App.Rotation())
sketch7.addGeometry(Part.Circle(App.Vector(21.8, 54.5, 0), App.Vector(0, 0, 1), 2), False)
sketch7.addGeometry(Part.Circle(App.Vector(64.1, 79, 0), App.Vector(0, 0, 1), 2), False)
sketch7.addGeometry(Part.Circle(App.Vector(64.1, 30, 0), App.Vector(0, 0, 1), 2), False)
sketch7.addGeometry(Part.Circle(App.Vector(85.3, 53.8, 0), App.Vector(0, 0, 1), 1.5), False)
sketch7.addGeometry(Part.Circle(App.Vector(85.3, 33, 0), App.Vector(0, 0, 1), 1.5), False)
sketch7.addConstraint(Sketcher.Constraint("Equal", 0, 1))
sketch7.addConstraint(Sketcher.Constraint("Equal", 1, 2))
sketch7.addConstraint(Sketcher.Constraint("Equal", 3, 4))
sketch7.addConstraint(Sketcher.Constraint("Vertical", 1, 3, 2, 3))
sketch7.addConstraint(Sketcher.Constraint("Vertical", 3, 3, 4, 3))
sketch7.addConstraint(Sketcher.Constraint("Diameter", 0, Q("4 mm")))
sketch7.addConstraint(Sketcher.Constraint("Diameter", 3, Q("3 mm")))
sketch7.addConstraint(Sketcher.Constraint("DistanceY", -1, 1, 4, 3, Q("33 mm")))
sketch7.addConstraint(Sketcher.Constraint("DistanceY", -1, 1, 0, 3, Q("54.5 mm")))
sketch7.addConstraint(Sketcher.Constraint("DistanceX", -1, 1, 3, 3, Q("85.3 mm")))
sketch7.addConstraint(Sketcher.Constraint("DistanceY", -1, 1, 3, 3, Q("53.8 mm")))
sketch7.addConstraint(Sketcher.Constraint("DistanceX", -1, 1, 0, 3, Q("21.75 mm")))
sketch7.addConstraint(Sketcher.Constraint("DistanceX", -1, 1, 1, 3, Q("64.125 mm")))
sketch7.addConstraint(Sketcher.Constraint("DistanceY", -1, 1, 1, 3, Q("78.965218 mm")))
sketch7.addConstraint(Sketcher.Constraint("DistanceY", -1, 1, 2, 3, Q("30.034782 mm")))
pocket5 = body.newObject("PartDesign::Pocket", "Pocket004")
pocket5.Profile = sketch7
pocket5.Type = "ThroughAll"

# Sketch on XY plane
sketch8 = body.newObject("Sketcher::SketchObject", "Sketch007")
sketch8.AttachmentSupport = (doc.getObject("XY_Plane"), [""])
sketch8.MapMode = "FlatFace"
sketch8.AttachmentOffset = App.Placement(App.Vector(0, 0, 8), App.Rotation())
sketch8.addGeometry(Part.LineSegment(App.Vector(35, 0, 0), App.Vector(35, -2.5, 0)), False)
sketch8.addGeometry(Part.LineSegment(App.Vector(35, -2.5, 0), App.Vector(65, -2.5, 0)), False)
sketch8.addGeometry(Part.LineSegment(App.Vector(65, -2.5, 0), App.Vector(65, 0, 0)), False)
sketch8.addGeometry(Part.LineSegment(App.Vector(65, 0, 0), App.Vector(35, 0, 0)), False)
sketch8.addConstraint(Sketcher.Constraint("Coincident", 0, 2, 1, 1))
sketch8.addConstraint(Sketcher.Constraint("Coincident", 1, 2, 2, 1))
sketch8.addConstraint(Sketcher.Constraint("Coincident", 2, 2, 3, 1))
sketch8.addConstraint(Sketcher.Constraint("Coincident", 3, 2, 0, 1))
sketch8.addConstraint(Sketcher.Constraint("Vertical", 0))
sketch8.addConstraint(Sketcher.Constraint("Horizontal", 1))
sketch8.addConstraint(Sketcher.Constraint("Vertical", 2))
sketch8.addConstraint(Sketcher.Constraint("Horizontal", 3))
sketch8.addConstraint(Sketcher.Constraint("PointOnObject", 2, 2, -1))
sketch8.addConstraint(Sketcher.Constraint("DistanceX", 1, 1, 1, 2, Q("30 mm")))
sketch8.addConstraint(Sketcher.Constraint("DistanceY", 0, 2, 0, 1, Q("2.5 mm")))
sketch8.addConstraint(Sketcher.Constraint("DistanceX", -1, 1, 0, 2, Q("35 mm")))
pad3 = body.newObject("PartDesign::Pad", "Pad002")
pad3.Profile = sketch8
pad3.Length = 8
pad3.Reversed = True

# Sketch on XY plane
sketch9 = body.newObject("Sketcher::SketchObject", "Sketch008")
sketch9.AttachmentSupport = (doc.getObject("XY_Plane"), [""])
sketch9.MapMode = "FlatFace"
sketch9.AttachmentOffset = App.Placement(App.Vector(0, 0, 8), App.Rotation())
sketch9.addGeometry(Part.LineSegment(App.Vector(88.5, 53.8, 0), App.Vector(86.9, 56.5, 0)), False)
sketch9.addGeometry(Part.LineSegment(App.Vector(86.9, 56.5, 0), App.Vector(83.7, 56.5, 0)), False)
sketch9.addGeometry(Part.LineSegment(App.Vector(83.7, 56.5, 0), App.Vector(82.1, 53.8, 0)), False)
sketch9.addGeometry(Part.LineSegment(App.Vector(82.1, 53.8, 0), App.Vector(83.7, 51, 0)), False)
sketch9.addGeometry(Part.LineSegment(App.Vector(83.7, 51, 0), App.Vector(86.9, 51, 0)), False)
sketch9.addGeometry(Part.LineSegment(App.Vector(86.9, 51, 0), App.Vector(88.5, 53.8, 0)), False)
sketch9.addGeometry(Part.LineSegment(App.Vector(88.5, 33, 0), App.Vector(86.9, 35.8, 0)), False)
sketch9.addGeometry(Part.LineSegment(App.Vector(86.9, 35.8, 0), App.Vector(83.7, 35.8, 0)), False)
sketch9.addGeometry(Part.LineSegment(App.Vector(83.7, 35.8, 0), App.Vector(82.1, 33, 0)), False)
sketch9.addGeometry(Part.LineSegment(App.Vector(82.1, 33, 0), App.Vector(83.7, 30.2, 0)), False)
sketch9.addGeometry(Part.LineSegment(App.Vector(83.7, 30.2, 0), App.Vector(86.9, 30.2, 0)), False)
sketch9.addGeometry(Part.LineSegment(App.Vector(86.9, 30.2, 0), App.Vector(88.5, 33, 0)), False)
sketch9.addConstraint(Sketcher.Constraint("Coincident", 0, 2, 1, 1))
sketch9.addConstraint(Sketcher.Constraint("Coincident", 1, 2, 2, 1))
sketch9.addConstraint(Sketcher.Constraint("Coincident", 2, 2, 3, 1))
sketch9.addConstraint(Sketcher.Constraint("Coincident", 3, 2, 4, 1))
sketch9.addConstraint(Sketcher.Constraint("Coincident", 4, 2, 5, 1))
sketch9.addConstraint(Sketcher.Constraint("Coincident", 5, 2, 0, 1))
sketch9.addConstraint(Sketcher.Constraint("Coincident", 6, 2, 7, 1))
sketch9.addConstraint(Sketcher.Constraint("Coincident", 7, 2, 8, 1))
sketch9.addConstraint(Sketcher.Constraint("Coincident", 8, 2, 9, 1))
sketch9.addConstraint(Sketcher.Constraint("Coincident", 9, 2, 10, 1))
sketch9.addConstraint(Sketcher.Constraint("Coincident", 10, 2, 11, 1))
sketch9.addConstraint(Sketcher.Constraint("Coincident", 11, 2, 6, 1))
sketch9.addConstraint(Sketcher.Constraint("Horizontal", 1))
sketch9.addConstraint(Sketcher.Constraint("Horizontal", 4))
sketch9.addConstraint(Sketcher.Constraint("Horizontal", 7))
sketch9.addConstraint(Sketcher.Constraint("Horizontal", 10))
sketch9.addConstraint(Sketcher.Constraint("Parallel", 0, 3))
sketch9.addConstraint(Sketcher.Constraint("Parallel", 2, 5))
sketch9.addConstraint(Sketcher.Constraint("Parallel", 3, 6))
sketch9.addConstraint(Sketcher.Constraint("Parallel", 5, 8))
sketch9.addConstraint(Sketcher.Constraint("Parallel", 6, 9))
sketch9.addConstraint(Sketcher.Constraint("Parallel", 8, 11))
sketch9.addConstraint(Sketcher.Constraint("Horizontal", 2, 2, 5, 2))
sketch9.addConstraint(Sketcher.Constraint("Horizontal", 8, 2, 11, 2))
sketch9.addConstraint(Sketcher.Constraint("Vertical", 1, 2, 3, 2))
sketch9.addConstraint(Sketcher.Constraint("Vertical", 0, 2, 4, 2))
sketch9.addConstraint(Sketcher.Constraint("Vertical", 4, 2, 6, 2))
sketch9.addConstraint(Sketcher.Constraint("Vertical", 3, 2, 7, 2))
sketch9.addConstraint(Sketcher.Constraint("Vertical", 2, 2, 8, 2))
sketch9.addConstraint(Sketcher.Constraint("Vertical", 7, 2, 9, 2))
sketch9.addConstraint(Sketcher.Constraint("Angle", 0, Q("120 deg")))
sketch9.addConstraint(Sketcher.Constraint("DistanceY", -1, 1, 8, 2, Q("33 mm")))
sketch9.addConstraint(Sketcher.Constraint("DistanceY", -1, 1, 2, 2, Q("53.8 mm")))
sketch9.addConstraint(Sketcher.Constraint("DistanceY", 3, 2, 1, 2, Q("5.5 mm")))
sketch9.addConstraint(Sketcher.Constraint("DistanceX", 1, 2, 1, 1, Q("3.175426 mm")))
sketch9.addConstraint(Sketcher.Constraint("DistanceX", -1, 1, 0, 2, Q("86.887713 mm")))
pocket6 = body.newObject("PartDesign::Pocket", "Pocket005")
pocket6.Profile = sketch9
pocket6.Length = 2.5

doc.recompute()
